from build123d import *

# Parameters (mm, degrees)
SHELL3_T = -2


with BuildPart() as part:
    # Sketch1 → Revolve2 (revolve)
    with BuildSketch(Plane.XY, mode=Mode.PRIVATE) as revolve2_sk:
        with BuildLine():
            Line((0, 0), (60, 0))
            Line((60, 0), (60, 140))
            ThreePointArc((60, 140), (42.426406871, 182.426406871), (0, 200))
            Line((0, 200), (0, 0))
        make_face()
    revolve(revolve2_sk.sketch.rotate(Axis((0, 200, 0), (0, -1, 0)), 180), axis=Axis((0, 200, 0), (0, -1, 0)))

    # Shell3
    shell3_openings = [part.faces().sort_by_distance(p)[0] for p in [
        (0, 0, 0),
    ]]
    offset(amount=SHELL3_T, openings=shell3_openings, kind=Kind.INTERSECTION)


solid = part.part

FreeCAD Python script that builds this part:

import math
import FreeCAD as App
import Part
import Sketcher


def faces_at(feature, points):
    """Names of the faces that lie closest to the given points."""
    faces = feature.Shape.Faces
    near = lambda p: min(range(len(faces)), key=lambda i: faces[i].distToShape(Part.Vertex(*p))[0])
    return sorted({f"Face{near(p) + 1}" for p in points})

doc = App.newDocument("Part")
body = doc.addObject("PartDesign::Body", "Body")

sketch1 = body.newObject("Sketcher::SketchObject", "Sketch")
sketch1.AttachmentSupport = (doc.getObject("XY_Plane"), [""])
sketch1.MapMode = "FlatFace"
sketch1.addGeometry(Part.LineSegment(App.Vector(0, 0, 0), App.Vector(60, 0, 0)), False)
sketch1.addGeometry(Part.LineSegment(App.Vector(60, 0, 0), App.Vector(60, 140, 0)), False)
sketch1.addGeometry(Part.ArcOfCircle(Part.Circle(App.Vector(0, 140, 0), App.Vector(0, 0, 1), 60), math.radians(0), math.radians(90)), False)
sketch1.addGeometry(Part.LineSegment(App.Vector(0, 200, 0), App.Vector(0, 0, 0)), False)
sketch1.addConstraint(Sketcher.Constraint("Coincident", 0, 2, 1, 1))
sketch1.addConstraint(Sketcher.Constraint("Tangent", 1, 2, 2, 1))
sketch1.addConstraint(Sketcher.Constraint("Coincident", 2, 2, 3, 1))
sketch1.addConstraint(Sketcher.Constraint("Coincident", 3, 2, 0, 1))
sketch1.addConstraint(Sketcher.Constraint("Horizontal", 0))
sketch1.addConstraint(Sketcher.Constraint("Vertical", 1))
sketch1.addConstraint(Sketcher.Constraint("Vertical", 3))
sketch1.addConstraint(Sketcher.Constraint("Coincident", 3, 2, -1, 1))
sketch1.addConstraint(Sketcher.Constraint("PointOnObject", 2, 3, -2))
sketch1.addConstraint(Sketcher.Constraint("Radius", 2, 60.0))
sketch1.addConstraint(Sketcher.Constraint("DistanceY", 1, 1, 1, 2, 140.0))
revolution = body.newObject("PartDesign::Revolution", "Revolution")
revolution.Profile = sketch1
revolution.ReferenceAxis = (sketch1, ["V_Axis"])
revolution.Angle = 360
doc.recompute()

thickness = body.newObject("PartDesign::Thickness", "Thickness")
thickness.Base = (revolution, faces_at(revolution, [(0, 0, 0)]))
thickness.Value = 2
thickness.Reversed = True
thickness.Join = "Intersection"

doc.recompute()
